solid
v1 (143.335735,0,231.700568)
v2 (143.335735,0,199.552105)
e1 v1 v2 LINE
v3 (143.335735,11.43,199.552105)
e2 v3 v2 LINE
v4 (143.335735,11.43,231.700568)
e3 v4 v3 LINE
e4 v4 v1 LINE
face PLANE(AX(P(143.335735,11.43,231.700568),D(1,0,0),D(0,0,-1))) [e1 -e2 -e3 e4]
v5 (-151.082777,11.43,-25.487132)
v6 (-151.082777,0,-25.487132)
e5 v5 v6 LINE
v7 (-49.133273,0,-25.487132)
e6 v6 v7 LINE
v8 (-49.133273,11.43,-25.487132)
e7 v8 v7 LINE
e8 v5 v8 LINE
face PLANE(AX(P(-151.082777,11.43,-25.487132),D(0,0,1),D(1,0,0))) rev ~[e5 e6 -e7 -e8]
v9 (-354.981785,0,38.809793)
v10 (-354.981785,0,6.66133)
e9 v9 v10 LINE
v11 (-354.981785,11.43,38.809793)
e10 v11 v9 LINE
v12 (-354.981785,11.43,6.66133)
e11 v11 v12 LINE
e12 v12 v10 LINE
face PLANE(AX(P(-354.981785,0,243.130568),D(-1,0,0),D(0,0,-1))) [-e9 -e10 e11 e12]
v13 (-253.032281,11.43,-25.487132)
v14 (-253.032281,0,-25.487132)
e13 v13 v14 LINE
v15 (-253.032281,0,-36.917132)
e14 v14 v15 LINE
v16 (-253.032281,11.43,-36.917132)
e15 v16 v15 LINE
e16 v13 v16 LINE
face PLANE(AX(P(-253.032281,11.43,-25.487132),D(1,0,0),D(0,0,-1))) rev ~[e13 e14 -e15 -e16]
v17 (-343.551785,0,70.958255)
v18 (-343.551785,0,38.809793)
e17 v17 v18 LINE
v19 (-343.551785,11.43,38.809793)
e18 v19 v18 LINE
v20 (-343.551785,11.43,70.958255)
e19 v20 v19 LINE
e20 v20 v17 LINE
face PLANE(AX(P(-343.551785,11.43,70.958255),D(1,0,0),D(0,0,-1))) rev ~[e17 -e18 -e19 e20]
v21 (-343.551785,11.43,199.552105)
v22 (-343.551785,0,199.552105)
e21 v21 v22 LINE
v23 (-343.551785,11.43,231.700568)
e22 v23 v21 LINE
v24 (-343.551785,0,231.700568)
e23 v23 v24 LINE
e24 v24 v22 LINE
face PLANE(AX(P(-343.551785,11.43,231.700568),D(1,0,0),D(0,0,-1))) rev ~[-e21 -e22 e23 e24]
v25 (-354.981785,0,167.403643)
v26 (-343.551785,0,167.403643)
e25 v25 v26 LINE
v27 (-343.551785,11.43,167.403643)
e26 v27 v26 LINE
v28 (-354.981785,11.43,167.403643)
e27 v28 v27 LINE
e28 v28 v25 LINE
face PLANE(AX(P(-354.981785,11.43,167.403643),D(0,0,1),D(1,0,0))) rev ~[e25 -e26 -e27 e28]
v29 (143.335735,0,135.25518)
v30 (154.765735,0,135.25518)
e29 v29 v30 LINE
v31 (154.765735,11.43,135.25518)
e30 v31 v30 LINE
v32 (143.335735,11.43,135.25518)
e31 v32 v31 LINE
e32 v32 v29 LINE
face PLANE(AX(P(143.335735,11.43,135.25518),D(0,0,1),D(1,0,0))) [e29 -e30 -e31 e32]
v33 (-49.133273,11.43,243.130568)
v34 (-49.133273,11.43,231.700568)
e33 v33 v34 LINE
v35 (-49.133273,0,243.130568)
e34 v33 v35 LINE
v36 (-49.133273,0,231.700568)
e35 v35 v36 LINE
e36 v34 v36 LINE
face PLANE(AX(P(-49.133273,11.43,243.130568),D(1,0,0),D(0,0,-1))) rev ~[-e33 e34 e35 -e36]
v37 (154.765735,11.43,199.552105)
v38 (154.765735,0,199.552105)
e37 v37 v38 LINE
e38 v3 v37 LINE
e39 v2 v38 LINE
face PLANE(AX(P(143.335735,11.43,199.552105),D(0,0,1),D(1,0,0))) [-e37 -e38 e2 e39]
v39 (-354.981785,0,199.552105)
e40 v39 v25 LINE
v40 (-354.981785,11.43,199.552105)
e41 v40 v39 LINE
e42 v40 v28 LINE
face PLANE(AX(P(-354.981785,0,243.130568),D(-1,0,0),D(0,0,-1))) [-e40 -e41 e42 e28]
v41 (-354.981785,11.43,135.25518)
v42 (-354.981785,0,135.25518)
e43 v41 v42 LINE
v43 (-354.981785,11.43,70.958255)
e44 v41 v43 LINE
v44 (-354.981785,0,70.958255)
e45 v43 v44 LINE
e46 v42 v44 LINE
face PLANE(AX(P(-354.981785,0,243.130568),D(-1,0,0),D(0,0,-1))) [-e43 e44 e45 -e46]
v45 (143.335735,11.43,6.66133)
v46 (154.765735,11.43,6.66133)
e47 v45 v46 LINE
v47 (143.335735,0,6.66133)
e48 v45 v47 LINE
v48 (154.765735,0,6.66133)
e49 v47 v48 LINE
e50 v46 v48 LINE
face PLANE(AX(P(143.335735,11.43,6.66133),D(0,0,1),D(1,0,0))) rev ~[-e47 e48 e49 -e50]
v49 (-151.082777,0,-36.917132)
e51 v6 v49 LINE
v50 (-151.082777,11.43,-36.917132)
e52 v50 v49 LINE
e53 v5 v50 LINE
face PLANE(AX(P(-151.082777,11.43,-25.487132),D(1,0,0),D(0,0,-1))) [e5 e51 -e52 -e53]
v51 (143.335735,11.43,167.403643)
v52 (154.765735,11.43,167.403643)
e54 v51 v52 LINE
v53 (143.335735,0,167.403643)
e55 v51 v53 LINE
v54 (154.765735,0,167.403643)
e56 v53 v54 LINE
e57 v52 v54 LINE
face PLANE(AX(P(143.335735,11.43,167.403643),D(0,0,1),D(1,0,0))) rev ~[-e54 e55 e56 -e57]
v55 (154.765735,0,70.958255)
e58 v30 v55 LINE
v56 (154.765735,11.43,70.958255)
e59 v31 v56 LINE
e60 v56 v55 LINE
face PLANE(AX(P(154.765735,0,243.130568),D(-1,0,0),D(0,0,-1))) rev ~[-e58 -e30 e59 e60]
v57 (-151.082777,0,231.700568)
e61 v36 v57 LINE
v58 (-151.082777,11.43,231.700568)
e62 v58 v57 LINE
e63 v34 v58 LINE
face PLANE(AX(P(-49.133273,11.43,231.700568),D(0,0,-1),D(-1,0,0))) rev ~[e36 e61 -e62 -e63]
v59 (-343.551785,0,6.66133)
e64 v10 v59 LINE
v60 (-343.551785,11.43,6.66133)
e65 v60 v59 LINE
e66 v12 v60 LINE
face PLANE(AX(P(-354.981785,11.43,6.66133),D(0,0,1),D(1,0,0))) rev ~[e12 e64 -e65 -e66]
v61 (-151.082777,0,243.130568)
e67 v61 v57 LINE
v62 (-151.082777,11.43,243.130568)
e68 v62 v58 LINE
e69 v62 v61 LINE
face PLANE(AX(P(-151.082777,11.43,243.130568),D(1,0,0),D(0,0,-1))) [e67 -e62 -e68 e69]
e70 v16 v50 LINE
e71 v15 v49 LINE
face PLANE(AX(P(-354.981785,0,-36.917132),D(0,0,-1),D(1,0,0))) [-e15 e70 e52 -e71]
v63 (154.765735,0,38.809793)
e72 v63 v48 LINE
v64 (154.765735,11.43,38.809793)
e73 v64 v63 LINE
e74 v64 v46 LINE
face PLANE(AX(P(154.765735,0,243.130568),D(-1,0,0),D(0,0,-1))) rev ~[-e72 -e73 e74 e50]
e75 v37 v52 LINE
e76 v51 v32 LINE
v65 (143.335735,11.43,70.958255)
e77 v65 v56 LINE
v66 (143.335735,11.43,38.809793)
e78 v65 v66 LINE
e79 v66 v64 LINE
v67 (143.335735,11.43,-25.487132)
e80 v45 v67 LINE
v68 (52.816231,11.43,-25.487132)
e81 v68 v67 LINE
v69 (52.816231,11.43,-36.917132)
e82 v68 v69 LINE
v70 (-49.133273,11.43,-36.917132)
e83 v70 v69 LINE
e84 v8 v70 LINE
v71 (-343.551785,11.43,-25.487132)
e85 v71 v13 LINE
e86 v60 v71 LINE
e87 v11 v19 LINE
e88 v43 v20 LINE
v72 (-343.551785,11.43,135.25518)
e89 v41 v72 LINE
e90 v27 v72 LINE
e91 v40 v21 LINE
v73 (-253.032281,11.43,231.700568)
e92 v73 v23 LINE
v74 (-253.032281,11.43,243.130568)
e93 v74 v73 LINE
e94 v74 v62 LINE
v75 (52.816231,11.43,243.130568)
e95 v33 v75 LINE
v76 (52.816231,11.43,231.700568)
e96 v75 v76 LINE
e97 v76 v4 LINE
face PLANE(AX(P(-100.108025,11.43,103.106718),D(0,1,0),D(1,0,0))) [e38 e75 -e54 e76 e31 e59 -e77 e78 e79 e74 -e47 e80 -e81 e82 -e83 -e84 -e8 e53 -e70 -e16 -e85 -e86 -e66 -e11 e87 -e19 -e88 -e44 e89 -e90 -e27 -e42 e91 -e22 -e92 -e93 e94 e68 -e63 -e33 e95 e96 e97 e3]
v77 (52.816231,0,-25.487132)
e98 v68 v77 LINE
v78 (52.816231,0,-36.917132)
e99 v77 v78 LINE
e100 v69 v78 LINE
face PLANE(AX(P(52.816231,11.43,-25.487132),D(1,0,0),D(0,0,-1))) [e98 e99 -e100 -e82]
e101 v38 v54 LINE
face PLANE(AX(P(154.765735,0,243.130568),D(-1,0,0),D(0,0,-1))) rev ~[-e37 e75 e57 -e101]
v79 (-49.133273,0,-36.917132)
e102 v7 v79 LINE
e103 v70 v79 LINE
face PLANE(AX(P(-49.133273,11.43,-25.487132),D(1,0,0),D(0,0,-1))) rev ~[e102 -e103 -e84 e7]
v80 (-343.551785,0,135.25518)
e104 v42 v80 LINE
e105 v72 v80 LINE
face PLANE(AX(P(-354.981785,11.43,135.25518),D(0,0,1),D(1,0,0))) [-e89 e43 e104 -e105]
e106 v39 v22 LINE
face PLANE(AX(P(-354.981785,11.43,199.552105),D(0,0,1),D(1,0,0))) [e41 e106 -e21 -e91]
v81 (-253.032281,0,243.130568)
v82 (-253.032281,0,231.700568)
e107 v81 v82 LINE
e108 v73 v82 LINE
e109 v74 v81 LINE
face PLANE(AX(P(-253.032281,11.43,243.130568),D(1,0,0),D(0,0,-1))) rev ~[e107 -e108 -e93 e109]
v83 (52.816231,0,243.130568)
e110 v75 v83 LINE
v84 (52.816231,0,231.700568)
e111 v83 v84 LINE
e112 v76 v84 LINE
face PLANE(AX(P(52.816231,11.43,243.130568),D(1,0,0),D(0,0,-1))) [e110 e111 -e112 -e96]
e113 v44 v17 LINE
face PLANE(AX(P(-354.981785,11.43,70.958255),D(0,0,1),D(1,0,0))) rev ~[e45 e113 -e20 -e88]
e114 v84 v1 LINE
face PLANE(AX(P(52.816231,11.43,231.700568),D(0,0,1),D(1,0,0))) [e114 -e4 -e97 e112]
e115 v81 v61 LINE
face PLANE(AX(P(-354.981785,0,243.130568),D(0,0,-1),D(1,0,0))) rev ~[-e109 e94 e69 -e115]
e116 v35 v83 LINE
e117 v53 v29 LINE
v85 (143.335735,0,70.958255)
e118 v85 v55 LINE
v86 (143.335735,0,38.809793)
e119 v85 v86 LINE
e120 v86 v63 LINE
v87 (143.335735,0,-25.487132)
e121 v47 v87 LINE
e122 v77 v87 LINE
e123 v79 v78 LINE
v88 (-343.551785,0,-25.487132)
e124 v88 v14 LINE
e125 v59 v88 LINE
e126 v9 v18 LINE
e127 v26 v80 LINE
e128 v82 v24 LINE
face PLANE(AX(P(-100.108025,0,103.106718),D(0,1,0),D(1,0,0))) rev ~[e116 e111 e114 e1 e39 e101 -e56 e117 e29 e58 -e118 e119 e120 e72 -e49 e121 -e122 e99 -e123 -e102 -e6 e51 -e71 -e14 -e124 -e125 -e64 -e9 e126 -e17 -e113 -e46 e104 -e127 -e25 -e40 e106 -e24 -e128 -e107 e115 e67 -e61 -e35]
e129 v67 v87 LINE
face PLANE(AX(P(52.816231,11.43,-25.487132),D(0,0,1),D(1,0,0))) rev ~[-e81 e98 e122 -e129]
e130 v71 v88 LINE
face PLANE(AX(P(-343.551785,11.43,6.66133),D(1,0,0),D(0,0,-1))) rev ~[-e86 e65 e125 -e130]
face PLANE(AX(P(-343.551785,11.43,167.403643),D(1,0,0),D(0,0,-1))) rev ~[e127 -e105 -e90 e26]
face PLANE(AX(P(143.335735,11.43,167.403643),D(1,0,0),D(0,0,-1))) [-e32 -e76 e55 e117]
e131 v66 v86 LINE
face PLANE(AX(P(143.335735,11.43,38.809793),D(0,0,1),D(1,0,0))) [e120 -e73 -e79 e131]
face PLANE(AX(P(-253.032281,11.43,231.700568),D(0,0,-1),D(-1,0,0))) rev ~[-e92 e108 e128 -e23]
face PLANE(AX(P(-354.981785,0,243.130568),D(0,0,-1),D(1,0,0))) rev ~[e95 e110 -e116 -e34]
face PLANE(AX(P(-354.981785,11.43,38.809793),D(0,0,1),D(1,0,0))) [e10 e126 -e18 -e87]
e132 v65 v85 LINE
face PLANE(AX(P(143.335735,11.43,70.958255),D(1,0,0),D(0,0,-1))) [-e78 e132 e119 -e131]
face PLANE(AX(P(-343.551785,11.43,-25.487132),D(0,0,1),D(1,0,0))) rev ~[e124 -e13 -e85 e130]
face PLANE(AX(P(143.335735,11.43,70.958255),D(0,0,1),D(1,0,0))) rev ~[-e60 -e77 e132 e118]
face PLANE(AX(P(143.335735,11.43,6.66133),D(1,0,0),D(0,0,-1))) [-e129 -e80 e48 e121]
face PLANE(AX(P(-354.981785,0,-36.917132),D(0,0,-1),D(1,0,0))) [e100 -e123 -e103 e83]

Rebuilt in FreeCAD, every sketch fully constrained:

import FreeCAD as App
import Part
import Sketcher

V = App.Vector
Q = App.Units.Quantity

doc = App.newDocument("Part")
body = doc.addObject("PartDesign::Body", "Body")

# Sketch on XZ plane
sketch1 = doc.addObject("Sketcher::SketchObject", "Sketch")
body.addObject(sketch1)
sketch1.AttachmentSupport = (doc.XZ_Plane, [""])
sketch1.MapMode = "FlatFace"
sketch1.addGeometry([
    Part.LineSegment(V(-355, -37, 0), V(-355, 243, 0)),
    Part.LineSegment(V(-355, 243, 0), V(155, 243, 0)),
    Part.LineSegment(V(155, 243, 0), V(155, -37, 0)),
    Part.LineSegment(V(155, -37, 0), V(-355, -37, 0)),
], False)
sketch1.addConstraint([
    Sketcher.Constraint("Coincident", 0, 2, 1, 1),
    Sketcher.Constraint("Coincident", 1, 2, 2, 1),
    Sketcher.Constraint("Coincident", 2, 2, 3, 1),
    Sketcher.Constraint("Coincident", 3, 2, 0, 1),
    Sketcher.Constraint("Vertical", 0),
    Sketcher.Constraint("Horizontal", 1),
    Sketcher.Constraint("Vertical", 2),
    Sketcher.Constraint("Horizontal", 3),
    Sketcher.Constraint("DistanceX", 1, 1, 1, 2, Q("20.0688 in")),
    Sketcher.Constraint("DistanceY", 0, 1, 0, 2, Q("11.0255 in")),
    Sketcher.Constraint("DistanceX", 0, 2, -1, 1, Q("354.981785 mm")),
    Sketcher.Constraint("DistanceY", -1, 1, 0, 2, Q("243.130568 mm")),
])
pad1 = doc.addObject("PartDesign::Pad", "Pad")
body.addObject(pad1)
pad1.Profile = sketch1
pad1.Length = Q("0.45 in")
pad1.Reversed = True

# Sketch on XZ plane
sketch2 = doc.addObject("Sketcher::SketchObject", "Sketch001")
body.addObject(sketch2)
sketch2.AttachmentSupport = (doc.XZ_Plane, [""])
sketch2.MapMode = "FlatFace"
sketch2.AttachmentOffset = App.Placement(V(0, 0, -0.45 * 25.4), App.Rotation())
sketch2.addGeometry([
    Part.LineSegment(V(-355, 135, 0), V(-355, 167, 0)),  # 0
    Part.LineSegment(V(-355, 167, 0), V(-344, 167, 0)),  # 1
    Part.LineSegment(V(-344, 167, 0), V(-344, 135, 0)),  # 2
    Part.LineSegment(V(-344, 135, 0), V(-355, 135, 0)),  # 3
    Part.LineSegment(V(-355, 200, 0), V(-355, 243, 0)),  # 4
    Part.LineSegment(V(-355, 243, 0), V(-253, 243, 0)),  # 5
    Part.LineSegment(V(-253, 243, 0), V(-253, 232, 0)),  # 6
    Part.LineSegment(V(-253, 232, 0), V(-344, 232, 0)),  # 7
    Part.LineSegment(V(-344, 232, 0), V(-344, 200, 0)),  # 8
    Part.LineSegment(V(-344, 200, 0), V(-355, 200, 0)),  # 9
    Part.LineSegment(V(-49, 243, 0), V(-49, 232, 0)),  # 10
    Part.LineSegment(V(-49, 232, 0), V(-151, 232, 0)),  # 11
    Part.LineSegment(V(-151, 232, 0), V(-151, 243, 0)),  # 12
    Part.LineSegment(V(-151, 243, 0), V(-49, 243, 0)),  # 13
    Part.LineSegment(V(53, 232, 0), V(53, 243, 0)),  # 14
    Part.LineSegment(V(53, 243, 0), V(155, 243, 0)),  # 15
    Part.LineSegment(V(155, 243, 0), V(155, 200, 0)),  # 16
    Part.LineSegment(V(155, 200, 0), V(143, 200, 0)),  # 17
    Part.LineSegment(V(143, 200, 0), V(143, 232, 0)),  # 18
    Part.LineSegment(V(143, 232, 0), V(53, 232, 0)),  # 19
    Part.LineSegment(V(143, 135, 0), V(143, 167, 0)),  # 20
    Part.LineSegment(V(143, 167, 0), V(155, 167, 0)),  # 21
    Part.LineSegment(V(155, 167, 0), V(155, 135, 0)),  # 22
    Part.LineSegment(V(155, 135, 0), V(143, 135, 0)),  # 23
    Part.LineSegment(V(143, 39, 0), V(143, 71, 0)),  # 24
    Part.LineSegment(V(143, 71, 0), V(155, 71, 0)),  # 25
    Part.LineSegment(V(155, 71, 0), V(155, 39, 0)),  # 26
    Part.LineSegment(V(155, 39, 0), V(143, 39, 0)),  # 27
    Part.LineSegment(V(143, -25, 0), V(143, 7, 0)),  # 28
    Part.LineSegment(V(143, 7, 0), V(155, 7, 0)),  # 29
    Part.LineSegment(V(155, 7, 0), V(155, -37, 0)),  # 30
    Part.LineSegment(V(155, -37, 0), V(53, -37, 0)),  # 31
    Part.LineSegment(V(53, -37, 0), V(53, -25, 0)),  # 32
    Part.LineSegment(V(53, -25, 0), V(143, -25, 0)),  # 33
    Part.LineSegment(V(-151, -37, 0), V(-151, -25, 0)),  # 34
    Part.LineSegment(V(-151, -25, 0), V(-49, -25, 0)),  # 35
    Part.LineSegment(V(-49, -25, 0), V(-49, -37, 0)),  # 36
    Part.LineSegment(V(-49, -37, 0), V(-151, -37, 0)),  # 37
    Part.LineSegment(V(-355, 39, 0), V(-355, 71, 0)),  # 38
    Part.LineSegment(V(-355, 71, 0), V(-344, 71, 0)),  # 39
    Part.LineSegment(V(-344, 71, 0), V(-344, 39, 0)),  # 40
    Part.LineSegment(V(-344, 39, 0), V(-355, 39, 0)),  # 41
    Part.LineSegment(V(-355, 7, 0), V(-344, 7, 0)),  # 42
    Part.LineSegment(V(-344, 7, 0), V(-344, -25, 0)),  # 43
    Part.LineSegment(V(-344, -25, 0), V(-253, -25, 0)),  # 44
    Part.LineSegment(V(-253, -25, 0), V(-253, -37, 0)),  # 45
    Part.LineSegment(V(-253, -37, 0), V(-355, -37, 0)),  # 46
    Part.LineSegment(V(-355, -37, 0), V(-355, 7, 0)),  # 47
], False)
sketch2.addConstraint([
    Sketcher.Constraint("Coincident", 0, 2, 1, 1),
    Sketcher.Constraint("Coincident", 1, 2, 2, 1),
    Sketcher.Constraint("Coincident", 2, 2, 3, 1),
    Sketcher.Constraint("Coincident", 3, 2, 0, 1),
    Sketcher.Constraint("Coincident", 4, 2, 5, 1),
    Sketcher.Constraint("Coincident", 5, 2, 6, 1),
    Sketcher.Constraint("Coincident", 6, 2, 7, 1),
    Sketcher.Constraint("Coincident", 7, 2, 8, 1),
    Sketcher.Constraint("Coincident", 8, 2, 9, 1),
    Sketcher.Constraint("Coincident", 9, 2, 4, 1),
    Sketcher.Constraint("Coincident", 10, 2, 11, 1),
    Sketcher.Constraint("Coincident", 11, 2, 12, 1),
    Sketcher.Constraint("Coincident", 12, 2, 13, 1),
    Sketcher.Constraint("Coincident", 13, 2, 10, 1),
    Sketcher.Constraint("Coincident", 14, 2, 15, 1),
    Sketcher.Constraint("Coincident", 15, 2, 16, 1),
    Sketcher.Constraint("Coincident", 16, 2, 17, 1),
    Sketcher.Constraint("Coincident", 17, 2, 18, 1),
    Sketcher.Constraint("Coincident", 18, 2, 19, 1),
    Sketcher.Constraint("Coincident", 19, 2, 14, 1),
    Sketcher.Constraint("Coincident", 20, 2, 21, 1),
    Sketcher.Constraint("Coincident", 21, 2, 22, 1),
    Sketcher.Constraint("Coincident", 22, 2, 23, 1),
    Sketcher.Constraint("Coincident", 23, 2, 20, 1),
    Sketcher.Constraint("Coincident", 24, 2, 25, 1),
    Sketcher.Constraint("Coincident", 25, 2, 26, 1),
    Sketcher.Constraint("Coincident", 26, 2, 27, 1),
    Sketcher.Constraint("Coincident", 27, 2, 24, 1),
    Sketcher.Constraint("Coincident", 28, 2, 29, 1),
    Sketcher.Constraint("Coincident", 29, 2, 30, 1),
    Sketcher.Constraint("Coincident", 30, 2, 31, 1),
    Sketcher.Constraint("Coincident", 31, 2, 32, 1),
    Sketcher.Constraint("Coincident", 32, 2, 33, 1),
    Sketcher.Constraint("Coincident", 33, 2, 28, 1),
    Sketcher.Constraint("Coincident", 34, 2, 35, 1),
    Sketcher.Constraint("Coincident", 35, 2, 36, 1),
    Sketcher.Constraint("Coincident", 36, 2, 37, 1),
    Sketcher.Constraint("Coincident", 37, 2, 34, 1),
    Sketcher.Constraint("Coincident", 38, 2, 39, 1),
    Sketcher.Constraint("Coincident", 39, 2, 40, 1),
    Sketcher.Constraint("Coincident", 40, 2, 41, 1),
    Sketcher.Constraint("Coincident", 41, 2, 38, 1),
    Sketcher.Constraint("Coincident", 42, 2, 43, 1),
    Sketcher.Constraint("Coincident", 43, 2, 44, 1),
    Sketcher.Constraint("Coincident", 44, 2, 45, 1),
    Sketcher.Constraint("Coincident", 45, 2, 46, 1),
    Sketcher.Constraint("Coincident", 46, 2, 47, 1),
    Sketcher.Constraint("Coincident", 47, 2, 42, 1),
    Sketcher.Constraint("Vertical", 0),
    Sketcher.Constraint("Horizontal", 1),
    Sketcher.Constraint("Vertical", 2),
    Sketcher.Constraint("Horizontal", 3),
    Sketcher.Constraint("Vertical", 4),
    Sketcher.Constraint("Horizontal", 5),
    Sketcher.Constraint("Vertical", 6),
    Sketcher.Constraint("Horizontal", 7),
    Sketcher.Constraint("Vertical", 8),
    Sketcher.Constraint("Horizontal", 9),
    Sketcher.Constraint("Vertical", 10),
    Sketcher.Constraint("Horizontal", 11),
    Sketcher.Constraint("Vertical", 12),
    Sketcher.Constraint("Horizontal", 13),
    Sketcher.Constraint("Vertical", 14),
    Sketcher.Constraint("Horizontal", 15),
    Sketcher.Constraint("Vertical", 16),
    Sketcher.Constraint("Horizontal", 17),
    Sketcher.Constraint("Vertical", 18),
    Sketcher.Constraint("Horizontal", 19),
    Sketcher.Constraint("Vertical", 20),
    Sketcher.Constraint("Horizontal", 21),
    Sketcher.Constraint("Vertical", 22),
    Sketcher.Constraint("Horizontal", 23),
    Sketcher.Constraint("Vertical", 24),
    Sketcher.Constraint("Horizontal", 25),
    Sketcher.Constraint("Vertical", 26),
    Sketcher.Constraint("Horizontal", 27),
    Sketcher.Constraint("Vertical", 28),
    Sketcher.Constraint("Horizontal", 29),
    Sketcher.Constraint("Vertical", 30),
    Sketcher.Constraint("Horizontal", 31),
    Sketcher.Constraint("Vertical", 32),
    Sketcher.Constraint("Horizontal", 33),
    Sketcher.Constraint("Vertical", 34),
    Sketcher.Constraint("Horizontal", 35),
    Sketcher.Constraint("Vertical", 36),
    Sketcher.Constraint("Horizontal", 37),
    Sketcher.Constraint("Vertical", 38),
    Sketcher.Constraint("Horizontal", 39),
    Sketcher.Constraint("Vertical", 40),
    Sketcher.Constraint("Horizontal", 41),
    Sketcher.Constraint("Horizontal", 42),
    Sketcher.Constraint("Vertical", 43),
    Sketcher.Constraint("Horizontal", 44),
    Sketcher.Constraint("Vertical", 45),
    Sketcher.Constraint("Horizontal", 46),
    Sketcher.Constraint("Vertical", 47),
    Sketcher.Constraint("Horizontal", 7, 2, 10, 2),
    Sketcher.Constraint("Horizontal", 5, 2, 12, 2),
    Sketcher.Constraint("Horizontal", 13, 2, 14, 2),
    Sketcher.Constraint("Horizontal", 9, 2, 16, 2),
    Sketcher.Constraint("Horizontal", 11, 2, 18, 2),
    Sketcher.Constraint("Horizontal", 1, 2, 20, 2),
    Sketcher.Constraint("Horizontal", 3, 2, 22, 2),
    Sketcher.Constraint("Horizontal", 33, 2, 34, 2),
    Sketcher.Constraint("Horizontal", 31, 2, 36, 2),
    Sketcher.Constraint("Horizontal", 25, 2, 38, 2),
    Sketcher.Constraint("Horizontal", 27, 2, 40, 2),
    Sketcher.Constraint("Horizontal", 29, 2, 42, 2),
    Sketcher.Constraint("Horizontal", 35, 2, 43, 2),
    Sketcher.Constraint("Horizontal", 37, 2, 45, 2),
    Sketcher.Constraint("Vertical", 3, 2, 4, 2),
    Sketcher.Constraint("Vertical", 2, 2, 7, 2),
    Sketcher.Constraint("Vertical", 18, 2, 20, 2),
    Sketcher.Constraint("Vertical", 16, 2, 21, 2),
    Sketcher.Constraint("Vertical", 23, 2, 24, 2),
    Sketcher.Constraint("Vertical", 22, 2, 25, 2),
    Sketcher.Constraint("Vertical", 27, 2, 28, 2),
    Sketcher.Constraint("Vertical", 26, 2, 29, 2),
    Sketcher.Constraint("Vertical", 19, 2, 31, 2),
    Sketcher.Constraint("Vertical", 12, 2, 34, 2),
    Sketcher.Constraint("Vertical", 13, 2, 35, 2),
    Sketcher.Constraint("Vertical", 9, 2, 38, 2),
    Sketcher.Constraint("Vertical", 8, 2, 39, 2),
    Sketcher.Constraint("Vertical", 40, 2, 42, 2),
    Sketcher.Constraint("Vertical", 6, 2, 44, 2),
    Sketcher.Constraint("Vertical", 41, 2, 46, 2),
    Sketcher.Constraint("Equal", 5, 11),
    Sketcher.Constraint("Equal", 13, 15),
    Sketcher.Constraint("Equal", 9, 17),
    Sketcher.Constraint("Equal", 42, 6),
    Sketcher.Constraint("Equal", 2, 8),
    Sketcher.Constraint("Equal", 22, 24),
    Sketcher.Constraint("Equal", 26, 28),
    Sketcher.Constraint("Equal", 16, 30),
    Sketcher.Constraint("DistanceX", 1, 1, 1, 2, Q("0.45 in")),
    Sketcher.Constraint("DistanceY", 34, 2, 11, 2, Q("10.1255 in")),
    Sketcher.Constraint("DistanceX", 5, 1, 5, 2, Q("101.949504 mm")),
    Sketcher.Constraint("DistanceY", 0, 1, 0, 2, Q("32.148462 mm")),
    Sketcher.Constraint("DistanceY", -1, 1, 2, 2, Q("135.25518 mm")),
    Sketcher.Constraint("DistanceX", 5, 2, -1, 1, Q("253.032281 mm")),
    Sketcher.Constraint("DistanceX", -1, 1, 14, 2, Q("52.816231 mm")),
    Sketcher.Constraint("DistanceY", -1, 1, 28, 2, Q("6.66133 mm")),
    Sketcher.Constraint("DistanceX", 7, 2, 10, 2, Q("294.418512 mm")),
    Sketcher.Constraint("DistanceY", 24, 2, 17, 2, Q("128.59385 mm")),
])
pocket1 = doc.addObject("PartDesign::Pocket", "Pocket")
body.addObject(pocket1)
pocket1.Profile = sketch2
pocket1.Type = "ThroughAll"
pocket1.Reversed = True

doc.recompute()
